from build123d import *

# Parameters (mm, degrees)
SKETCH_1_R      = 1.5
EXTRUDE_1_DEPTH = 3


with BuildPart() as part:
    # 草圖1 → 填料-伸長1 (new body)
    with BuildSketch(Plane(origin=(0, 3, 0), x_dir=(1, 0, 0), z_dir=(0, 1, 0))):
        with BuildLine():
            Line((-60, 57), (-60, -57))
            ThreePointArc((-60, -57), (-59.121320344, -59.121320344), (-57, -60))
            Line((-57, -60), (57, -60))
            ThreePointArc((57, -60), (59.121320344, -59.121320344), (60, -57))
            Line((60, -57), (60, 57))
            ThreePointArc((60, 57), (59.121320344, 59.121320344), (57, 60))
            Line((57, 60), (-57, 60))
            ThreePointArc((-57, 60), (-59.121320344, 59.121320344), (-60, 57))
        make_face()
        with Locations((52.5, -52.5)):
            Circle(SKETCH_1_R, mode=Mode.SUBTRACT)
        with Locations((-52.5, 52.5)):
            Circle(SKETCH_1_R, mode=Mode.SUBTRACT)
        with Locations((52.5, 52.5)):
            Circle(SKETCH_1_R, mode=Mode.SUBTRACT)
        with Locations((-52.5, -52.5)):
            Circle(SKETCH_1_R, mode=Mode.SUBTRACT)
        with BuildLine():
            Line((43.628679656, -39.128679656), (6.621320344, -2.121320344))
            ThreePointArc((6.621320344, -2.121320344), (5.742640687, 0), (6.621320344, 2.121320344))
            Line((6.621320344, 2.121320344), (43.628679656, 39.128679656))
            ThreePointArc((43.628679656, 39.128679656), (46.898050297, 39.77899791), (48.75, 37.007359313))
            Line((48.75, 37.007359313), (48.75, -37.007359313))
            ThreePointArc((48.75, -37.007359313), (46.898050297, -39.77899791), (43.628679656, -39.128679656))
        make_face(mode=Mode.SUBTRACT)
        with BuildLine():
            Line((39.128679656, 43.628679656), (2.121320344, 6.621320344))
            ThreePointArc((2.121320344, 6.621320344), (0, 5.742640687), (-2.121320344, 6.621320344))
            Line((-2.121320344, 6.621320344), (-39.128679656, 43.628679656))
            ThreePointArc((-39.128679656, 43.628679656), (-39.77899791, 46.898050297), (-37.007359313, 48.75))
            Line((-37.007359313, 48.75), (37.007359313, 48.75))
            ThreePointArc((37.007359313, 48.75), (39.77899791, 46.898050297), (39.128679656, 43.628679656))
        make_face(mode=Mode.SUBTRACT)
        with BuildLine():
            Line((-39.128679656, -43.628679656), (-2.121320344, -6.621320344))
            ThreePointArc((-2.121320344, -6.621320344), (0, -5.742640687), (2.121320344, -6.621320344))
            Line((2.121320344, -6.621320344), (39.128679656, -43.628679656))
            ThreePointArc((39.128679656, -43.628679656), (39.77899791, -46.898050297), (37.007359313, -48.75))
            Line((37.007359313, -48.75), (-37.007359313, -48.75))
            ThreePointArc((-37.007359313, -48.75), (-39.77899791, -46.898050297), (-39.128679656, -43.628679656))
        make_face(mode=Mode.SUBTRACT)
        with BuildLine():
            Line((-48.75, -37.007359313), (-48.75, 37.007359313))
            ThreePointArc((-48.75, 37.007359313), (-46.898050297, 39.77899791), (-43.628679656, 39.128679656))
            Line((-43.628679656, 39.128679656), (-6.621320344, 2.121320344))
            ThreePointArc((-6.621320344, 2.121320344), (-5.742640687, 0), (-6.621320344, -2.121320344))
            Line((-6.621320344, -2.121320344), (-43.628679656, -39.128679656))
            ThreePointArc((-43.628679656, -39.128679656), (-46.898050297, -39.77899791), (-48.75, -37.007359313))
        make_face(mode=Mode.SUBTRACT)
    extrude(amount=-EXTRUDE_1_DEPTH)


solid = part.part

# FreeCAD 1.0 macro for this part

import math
import FreeCAD as App
import Part
import Sketcher

V = App.Vector
Q = App.Units.Quantity

doc = App.newDocument("Part")
params = doc.addObject("Spreadsheet::Sheet", "Params")
for row, (alias, value) in enumerate([
    ("sketch1_diameter", "3 mm"),
    ("sketch1_radius", "3 mm"),
    ("sketch1_width", "114 mm"),
    ("pad1_length", "3 mm"),
], start=1):
    params.set(f"A{row}", alias)
    params.set(f"B{row}", "=" + value)
    params.setAlias(f"B{row}", alias)

body = doc.addObject("PartDesign::Body", "Body")

# Sketch on XZ plane
sketch1 = body.newObject("Sketcher::SketchObject", "Sketch")
sketch1.AttachmentSupport = (doc.getObject("XZ_Plane"), [""])
sketch1.MapMode = "FlatFace"
sketch1.AttachmentOffset = App.Placement(V(0, 0, -3), App.Rotation())
sketch1.addGeometry(Part.LineSegment(V(-60, -57, 0), V(-60, 57, 0)), False)
sketch1.addGeometry(Part.ArcOfCircle(Part.Circle(V(-57, 57, 0), V(0, 0, 1), 3), math.radians(90), math.radians(180)), False)
sketch1.addGeometry(Part.LineSegment(V(-57, 60, 0), V(57, 60, 0)), False)
sketch1.addGeometry(Part.ArcOfCircle(Part.Circle(V(57, 57, 0), V(0, 0, 1), 3), math.radians(0), math.radians(90)), False)
sketch1.addGeometry(Part.LineSegment(V(60, 57, 0), V(60, -57, 0)), False)
sketch1.addGeometry(Part.ArcOfCircle(Part.Circle(V(57, -57, 0), V(0, 0, 1), 3), math.radians(-90), math.radians(0)), False)
sketch1.addGeometry(Part.LineSegment(V(57, -60, 0), V(-57, -60, 0)), False)
sketch1.addGeometry(Part.ArcOfCircle(Part.Circle(V(-57, -57, 0), V(0, 0, 1), 3), math.radians(180), math.radians(270)), False)
sketch1.addGeometry(Part.Circle(V(-52.5, 52.5, 0), V(0, 0, 1), 1.5), False)
sketch1.addGeometry(Part.ArcOfCircle(Part.Circle(V(-37, 45.8, 0), V(0, 0, 1), 3), math.radians(90), math.radians(225)), False)
sketch1.addGeometry(Part.LineSegment(V(-39.1, 43.6, 0), V(-2.1, 6.6, 0)), False)
sketch1.addGeometry(Part.ArcOfCircle(Part.Circle(V(0, 8.7, 0), V(0, 0, 1), 3), math.radians(-135), math.radians(-45)), False)
sketch1.addGeometry(Part.LineSegment(V(2.1, 6.6, 0), V(39.1, 43.6, 0)), False)
sketch1.addGeometry(Part.ArcOfCircle(Part.Circle(V(37, 45.8, 0), V(0, 0, 1), 3), math.radians(-45), math.radians(90)), False)
sketch1.addGeometry(Part.LineSegment(V(37, 48.8, 0), V(-37, 48.8, 0)), False)
sketch1.addGeometry(Part.Circle(V(52.5, 52.5, 0), V(0, 0, 1), 1.5), False)
sketch1.addGeometry(Part.ArcOfCircle(Part.Circle(V(-45.8, 37, 0), V(0, 0, 1), 3), math.radians(45), math.radians(180)), False)
sketch1.addGeometry(Part.LineSegment(V(-48.8, 37, 0), V(-48.8, -37, 0)), False)
sketch1.addGeometry(Part.ArcOfCircle(Part.Circle(V(-45.8, -37, 0), V(0, 0, 1), 3), math.radians(-180), math.radians(-45)), False)
sketch1.addGeometry(Part.LineSegment(V(-43.6, -39.1, 0), V(-6.6, -2.1, 0)), False)
sketch1.addGeometry(Part.ArcOfCircle(Part.Circle(V(-8.7, 0, 0), V(0, 0, 1), 3), math.radians(-45), math.radians(45)), False)
sketch1.addGeometry(Part.LineSegment(V(-6.6, 2.1, 0), V(-43.6, 39.1, 0)), False)
sketch1.addGeometry(Part.Circle(V(-52.5, -52.5, 0), V(0, 0, 1), 1.5), False)
sketch1.addGeometry(Part.ArcOfCircle(Part.Circle(V(45.8, 37, 0), V(0, 0, 1), 3), math.radians(0), math.radians(135)), False)
sketch1.addGeometry(Part.LineSegment(V(43.6, 39.1, 0), V(6.6, 2.1, 0)), False)
sketch1.addGeometry(Part.ArcOfCircle(Part.Circle(V(8.7, 0, 0), V(0, 0, 1), 3), math.radians(135), math.radians(225)), False)
sketch1.addGeometry(Part.LineSegment(V(6.6, -2.1, 0), V(43.6, -39.1, 0)), False)
sketch1.addGeometry(Part.ArcOfCircle(Part.Circle(V(45.8, -37, 0), V(0, 0, 1), 3), math.radians(-135), math.radians(0)), False)
sketch1.addGeometry(Part.LineSegment(V(48.8, -37, 0), V(48.8, 37, 0)), False)
sketch1.addGeometry(Part.ArcOfCircle(Part.Circle(V(37, -45.8, 0), V(0, 0, 1), 3), math.radians(-90), math.radians(45)), False)
sketch1.addGeometry(Part.LineSegment(V(39.1, -43.6, 0), V(2.1, -6.6, 0)), False)
sketch1.addGeometry(Part.ArcOfCircle(Part.Circle(V(0, -8.7, 0), V(0, 0, 1), 3), math.radians(45), math.radians(135)), False)
sketch1.addGeometry(Part.LineSegment(V(-2.1, -6.6, 0), V(-39.1, -43.6, 0)), False)
sketch1.addGeometry(Part.ArcOfCircle(Part.Circle(V(-37, -45.8, 0), V(0, 0, 1), 3), math.radians(135), math.radians(270)), False)
sketch1.addGeometry(Part.LineSegment(V(-37, -48.8, 0), V(37, -48.8, 0)), False)
sketch1.addGeometry(Part.Circle(V(52.5, -52.5, 0), V(0, 0, 1), 1.5), False)
sketch1.addConstraint(Sketcher.Constraint("Tangent", 0, 2, 1, 2))
sketch1.addConstraint(Sketcher.Constraint("Tangent", 1, 1, 2, 1))
sketch1.addConstraint(Sketcher.Constraint("Tangent", 2, 2, 3, 2))
sketch1.addConstraint(Sketcher.Constraint("Tangent", 3, 1, 4, 1))
sketch1.addConstraint(Sketcher.Constraint("Tangent", 4, 2, 5, 2))
sketch1.addConstraint(Sketcher.Constraint("Tangent", 5, 1, 6, 1))
sketch1.addConstraint(Sketcher.Constraint("Tangent", 6, 2, 7, 2))
sketch1.addConstraint(Sketcher.Constraint("Tangent", 7, 1, 0, 1))
sketch1.addConstraint(Sketcher.Constraint("Tangent", 9, 2, 10, 1))
sketch1.addConstraint(Sketcher.Constraint("Tangent", 10, 2, 11, 1))
sketch1.addConstraint(Sketcher.Constraint("Tangent", 11, 2, 12, 1))
sketch1.addConstraint(Sketcher.Constraint("Tangent", 12, 2, 13, 1))
sketch1.addConstraint(Sketcher.Constraint("Tangent", 13, 2, 14, 1))
sketch1.addConstraint(Sketcher.Constraint("Tangent", 14, 2, 9, 1))
sketch1.addConstraint(Sketcher.Constraint("Tangent", 16, 2, 17, 1))
sketch1.addConstraint(Sketcher.Constraint("Tangent", 17, 2, 18, 1))
sketch1.addConstraint(Sketcher.Constraint("Tangent", 18, 2, 19, 1))
sketch1.addConstraint(Sketcher.Constraint("Tangent", 19, 2, 20, 1))
sketch1.addConstraint(Sketcher.Constraint("Tangent", 20, 2, 21, 1))
sketch1.addConstraint(Sketcher.Constraint("Tangent", 21, 2, 16, 1))
sketch1.addConstraint(Sketcher.Constraint("Tangent", 23, 2, 24, 1))
sketch1.addConstraint(Sketcher.Constraint("Tangent", 24, 2, 25, 1))
sketch1.addConstraint(Sketcher.Constraint("Tangent", 25, 2, 26, 1))
sketch1.addConstraint(Sketcher.Constraint("Tangent", 26, 2, 27, 1))
sketch1.addConstraint(Sketcher.Constraint("Tangent", 27, 2, 28, 1))
sketch1.addConstraint(Sketcher.Constraint("Tangent", 28, 2, 23, 1))
sketch1.addConstraint(Sketcher.Constraint("Tangent", 29, 2, 30, 1))
sketch1.addConstraint(Sketcher.Constraint("Tangent", 30, 2, 31, 1))
sketch1.addConstraint(Sketcher.Constraint("Tangent", 31, 2, 32, 1))
sketch1.addConstraint(Sketcher.Constraint("Tangent", 32, 2, 33, 1))
sketch1.addConstraint(Sketcher.Constraint("Tangent", 33, 2, 34, 1))
sketch1.addConstraint(Sketcher.Constraint("Tangent", 34, 2, 29, 1))
sketch1.addConstraint(Sketcher.Constraint("Vertical", 0))
sketch1.addConstraint(Sketcher.Constraint("Horizontal", 2))
sketch1.addConstraint(Sketcher.Constraint("Vertical", 4))
sketch1.addConstraint(Sketcher.Constraint("Horizontal", 6))
sketch1.addConstraint(Sketcher.Constraint("Horizontal", 14))
sketch1.addConstraint(Sketcher.Constraint("Vertical", 17))
sketch1.addConstraint(Sketcher.Constraint("Vertical", 28))
sketch1.addConstraint(Sketcher.Constraint("Horizontal", 34))
sketch1.addConstraint(Sketcher.Constraint("Equal", 1, 3))
sketch1.addConstraint(Sketcher.Constraint("Equal", 3, 5))
sketch1.addConstraint(Sketcher.Constraint("Equal", 5, 7))
sketch1.addConstraint(Sketcher.Constraint("Equal", 7, 9))
sketch1.addConstraint(Sketcher.Constraint("Equal", 9, 11))
sketch1.addConstraint(Sketcher.Constraint("Equal", 11, 13))
sketch1.addConstraint(Sketcher.Constraint("Equal", 8, 15))
sketch1.addConstraint(Sketcher.Constraint("Equal", 13, 16))
sketch1.addConstraint(Sketcher.Constraint("Equal", 16, 18))
sketch1.addConstraint(Sketcher.Constraint("Equal", 18, 20))
sketch1.addConstraint(Sketcher.Constraint("Equal", 15, 22))
sketch1.addConstraint(Sketcher.Constraint("Equal", 20, 23))
sketch1.addConstraint(Sketcher.Constraint("Equal", 23, 25))
sketch1.addConstraint(Sketcher.Constraint("Equal", 25, 27))
sketch1.addConstraint(Sketcher.Constraint("Equal", 27, 29))
sketch1.addConstraint(Sketcher.Constraint("Equal", 29, 31))
sketch1.addConstraint(Sketcher.Constraint("Equal", 31, 33))
sketch1.addConstraint(Sketcher.Constraint("Equal", 22, 35))
sketch1.addConstraint(Sketcher.Constraint("Symmetric", 1, 3, 5, 3, -1, 1))
sketch1.addConstraint(Sketcher.Constraint("Symmetric", 15, 3, 22, 3, -1, 1))
sketch1.addConstraint(Sketcher.Constraint("Symmetric", 18, 3, 23, 3, -1, 1))
sketch1.addConstraint(Sketcher.Constraint("Symmetric", 20, 3, 25, 3, -1, 1))
sketch1.addConstraint(Sketcher.Constraint("Symmetric", 9, 3, 29, 3, -1, 1))
sketch1.addConstraint(Sketcher.Constraint("Symmetric", 11, 3, 31, 3, -1, 1))
sketch1.addConstraint(Sketcher.Constraint("Symmetric", 8, 3, 35, 3, -1, 1))
sketch1.addConstraint(Sketcher.Constraint("Symmetric", 8, 3, 15, 3, -2))
sketch1.addConstraint(Sketcher.Constraint("Symmetric", 10, 2, 11, 2, -2))
sketch1.addConstraint(Sketcher.Constraint("Symmetric", 21, 2, 23, 2, -2))
sketch1.addConstraint(Sketcher.Constraint("Perpendicular", 10, 12))
sketch1.addConstraint(Sketcher.Constraint("Parallel", 12, 19))
sketch1.addConstraint(Sketcher.Constraint("Perpendicular", 24, 26))
sketch1.addConstraint(Sketcher.Constraint("Perpendicular", 30, 32))
sketch1.addConstraint(Sketcher.Constraint("Equal", 6, 0))
sketch1.addConstraint(Sketcher.Constraint("Equal", 34, 17))
sketch1.addConstraint(Sketcher.Constraint("Diameter", 8, Q("3 mm")))
sketch1.addConstraint(Sketcher.Constraint("Radius", 1, Q("3 mm")))
sketch1.addConstraint(Sketcher.Constraint("DistanceX", 2, 1, 2, 2, Q("114 mm")))
sketch1.addConstraint(Sketcher.Constraint("DistanceX", 8, 3, 15, 3, Q("105 mm")))
sketch1.addConstraint(Sketcher.Constraint("DistanceY", -1, 1, 8, 3, Q("52.5 mm")))
sketch1.addConstraint(Sketcher.Constraint("DistanceX", 19, 2, 10, 2, Q("4.5 mm")))
sketch1.addConstraint(Sketcher.Constraint("DistanceY", 20, 2, 10, 2, Q("4.5 mm")))
sketch1.addConstraint(Sketcher.Constraint("DistanceY", -1, 1, 9, 3, Q("45.75 mm")))
sketch1.setExpression("Constraints[74]", "Params.sketch1_diameter")
sketch1.setExpression("Constraints[75]", "Params.sketch1_radius")
sketch1.setExpression("Constraints[76]", "Params.sketch1_width")
pad1 = body.newObject("PartDesign::Pad", "Pad")
pad1.Profile = sketch1
pad1.setExpression("Length", "Params.pad1_length")

doc.recompute()
